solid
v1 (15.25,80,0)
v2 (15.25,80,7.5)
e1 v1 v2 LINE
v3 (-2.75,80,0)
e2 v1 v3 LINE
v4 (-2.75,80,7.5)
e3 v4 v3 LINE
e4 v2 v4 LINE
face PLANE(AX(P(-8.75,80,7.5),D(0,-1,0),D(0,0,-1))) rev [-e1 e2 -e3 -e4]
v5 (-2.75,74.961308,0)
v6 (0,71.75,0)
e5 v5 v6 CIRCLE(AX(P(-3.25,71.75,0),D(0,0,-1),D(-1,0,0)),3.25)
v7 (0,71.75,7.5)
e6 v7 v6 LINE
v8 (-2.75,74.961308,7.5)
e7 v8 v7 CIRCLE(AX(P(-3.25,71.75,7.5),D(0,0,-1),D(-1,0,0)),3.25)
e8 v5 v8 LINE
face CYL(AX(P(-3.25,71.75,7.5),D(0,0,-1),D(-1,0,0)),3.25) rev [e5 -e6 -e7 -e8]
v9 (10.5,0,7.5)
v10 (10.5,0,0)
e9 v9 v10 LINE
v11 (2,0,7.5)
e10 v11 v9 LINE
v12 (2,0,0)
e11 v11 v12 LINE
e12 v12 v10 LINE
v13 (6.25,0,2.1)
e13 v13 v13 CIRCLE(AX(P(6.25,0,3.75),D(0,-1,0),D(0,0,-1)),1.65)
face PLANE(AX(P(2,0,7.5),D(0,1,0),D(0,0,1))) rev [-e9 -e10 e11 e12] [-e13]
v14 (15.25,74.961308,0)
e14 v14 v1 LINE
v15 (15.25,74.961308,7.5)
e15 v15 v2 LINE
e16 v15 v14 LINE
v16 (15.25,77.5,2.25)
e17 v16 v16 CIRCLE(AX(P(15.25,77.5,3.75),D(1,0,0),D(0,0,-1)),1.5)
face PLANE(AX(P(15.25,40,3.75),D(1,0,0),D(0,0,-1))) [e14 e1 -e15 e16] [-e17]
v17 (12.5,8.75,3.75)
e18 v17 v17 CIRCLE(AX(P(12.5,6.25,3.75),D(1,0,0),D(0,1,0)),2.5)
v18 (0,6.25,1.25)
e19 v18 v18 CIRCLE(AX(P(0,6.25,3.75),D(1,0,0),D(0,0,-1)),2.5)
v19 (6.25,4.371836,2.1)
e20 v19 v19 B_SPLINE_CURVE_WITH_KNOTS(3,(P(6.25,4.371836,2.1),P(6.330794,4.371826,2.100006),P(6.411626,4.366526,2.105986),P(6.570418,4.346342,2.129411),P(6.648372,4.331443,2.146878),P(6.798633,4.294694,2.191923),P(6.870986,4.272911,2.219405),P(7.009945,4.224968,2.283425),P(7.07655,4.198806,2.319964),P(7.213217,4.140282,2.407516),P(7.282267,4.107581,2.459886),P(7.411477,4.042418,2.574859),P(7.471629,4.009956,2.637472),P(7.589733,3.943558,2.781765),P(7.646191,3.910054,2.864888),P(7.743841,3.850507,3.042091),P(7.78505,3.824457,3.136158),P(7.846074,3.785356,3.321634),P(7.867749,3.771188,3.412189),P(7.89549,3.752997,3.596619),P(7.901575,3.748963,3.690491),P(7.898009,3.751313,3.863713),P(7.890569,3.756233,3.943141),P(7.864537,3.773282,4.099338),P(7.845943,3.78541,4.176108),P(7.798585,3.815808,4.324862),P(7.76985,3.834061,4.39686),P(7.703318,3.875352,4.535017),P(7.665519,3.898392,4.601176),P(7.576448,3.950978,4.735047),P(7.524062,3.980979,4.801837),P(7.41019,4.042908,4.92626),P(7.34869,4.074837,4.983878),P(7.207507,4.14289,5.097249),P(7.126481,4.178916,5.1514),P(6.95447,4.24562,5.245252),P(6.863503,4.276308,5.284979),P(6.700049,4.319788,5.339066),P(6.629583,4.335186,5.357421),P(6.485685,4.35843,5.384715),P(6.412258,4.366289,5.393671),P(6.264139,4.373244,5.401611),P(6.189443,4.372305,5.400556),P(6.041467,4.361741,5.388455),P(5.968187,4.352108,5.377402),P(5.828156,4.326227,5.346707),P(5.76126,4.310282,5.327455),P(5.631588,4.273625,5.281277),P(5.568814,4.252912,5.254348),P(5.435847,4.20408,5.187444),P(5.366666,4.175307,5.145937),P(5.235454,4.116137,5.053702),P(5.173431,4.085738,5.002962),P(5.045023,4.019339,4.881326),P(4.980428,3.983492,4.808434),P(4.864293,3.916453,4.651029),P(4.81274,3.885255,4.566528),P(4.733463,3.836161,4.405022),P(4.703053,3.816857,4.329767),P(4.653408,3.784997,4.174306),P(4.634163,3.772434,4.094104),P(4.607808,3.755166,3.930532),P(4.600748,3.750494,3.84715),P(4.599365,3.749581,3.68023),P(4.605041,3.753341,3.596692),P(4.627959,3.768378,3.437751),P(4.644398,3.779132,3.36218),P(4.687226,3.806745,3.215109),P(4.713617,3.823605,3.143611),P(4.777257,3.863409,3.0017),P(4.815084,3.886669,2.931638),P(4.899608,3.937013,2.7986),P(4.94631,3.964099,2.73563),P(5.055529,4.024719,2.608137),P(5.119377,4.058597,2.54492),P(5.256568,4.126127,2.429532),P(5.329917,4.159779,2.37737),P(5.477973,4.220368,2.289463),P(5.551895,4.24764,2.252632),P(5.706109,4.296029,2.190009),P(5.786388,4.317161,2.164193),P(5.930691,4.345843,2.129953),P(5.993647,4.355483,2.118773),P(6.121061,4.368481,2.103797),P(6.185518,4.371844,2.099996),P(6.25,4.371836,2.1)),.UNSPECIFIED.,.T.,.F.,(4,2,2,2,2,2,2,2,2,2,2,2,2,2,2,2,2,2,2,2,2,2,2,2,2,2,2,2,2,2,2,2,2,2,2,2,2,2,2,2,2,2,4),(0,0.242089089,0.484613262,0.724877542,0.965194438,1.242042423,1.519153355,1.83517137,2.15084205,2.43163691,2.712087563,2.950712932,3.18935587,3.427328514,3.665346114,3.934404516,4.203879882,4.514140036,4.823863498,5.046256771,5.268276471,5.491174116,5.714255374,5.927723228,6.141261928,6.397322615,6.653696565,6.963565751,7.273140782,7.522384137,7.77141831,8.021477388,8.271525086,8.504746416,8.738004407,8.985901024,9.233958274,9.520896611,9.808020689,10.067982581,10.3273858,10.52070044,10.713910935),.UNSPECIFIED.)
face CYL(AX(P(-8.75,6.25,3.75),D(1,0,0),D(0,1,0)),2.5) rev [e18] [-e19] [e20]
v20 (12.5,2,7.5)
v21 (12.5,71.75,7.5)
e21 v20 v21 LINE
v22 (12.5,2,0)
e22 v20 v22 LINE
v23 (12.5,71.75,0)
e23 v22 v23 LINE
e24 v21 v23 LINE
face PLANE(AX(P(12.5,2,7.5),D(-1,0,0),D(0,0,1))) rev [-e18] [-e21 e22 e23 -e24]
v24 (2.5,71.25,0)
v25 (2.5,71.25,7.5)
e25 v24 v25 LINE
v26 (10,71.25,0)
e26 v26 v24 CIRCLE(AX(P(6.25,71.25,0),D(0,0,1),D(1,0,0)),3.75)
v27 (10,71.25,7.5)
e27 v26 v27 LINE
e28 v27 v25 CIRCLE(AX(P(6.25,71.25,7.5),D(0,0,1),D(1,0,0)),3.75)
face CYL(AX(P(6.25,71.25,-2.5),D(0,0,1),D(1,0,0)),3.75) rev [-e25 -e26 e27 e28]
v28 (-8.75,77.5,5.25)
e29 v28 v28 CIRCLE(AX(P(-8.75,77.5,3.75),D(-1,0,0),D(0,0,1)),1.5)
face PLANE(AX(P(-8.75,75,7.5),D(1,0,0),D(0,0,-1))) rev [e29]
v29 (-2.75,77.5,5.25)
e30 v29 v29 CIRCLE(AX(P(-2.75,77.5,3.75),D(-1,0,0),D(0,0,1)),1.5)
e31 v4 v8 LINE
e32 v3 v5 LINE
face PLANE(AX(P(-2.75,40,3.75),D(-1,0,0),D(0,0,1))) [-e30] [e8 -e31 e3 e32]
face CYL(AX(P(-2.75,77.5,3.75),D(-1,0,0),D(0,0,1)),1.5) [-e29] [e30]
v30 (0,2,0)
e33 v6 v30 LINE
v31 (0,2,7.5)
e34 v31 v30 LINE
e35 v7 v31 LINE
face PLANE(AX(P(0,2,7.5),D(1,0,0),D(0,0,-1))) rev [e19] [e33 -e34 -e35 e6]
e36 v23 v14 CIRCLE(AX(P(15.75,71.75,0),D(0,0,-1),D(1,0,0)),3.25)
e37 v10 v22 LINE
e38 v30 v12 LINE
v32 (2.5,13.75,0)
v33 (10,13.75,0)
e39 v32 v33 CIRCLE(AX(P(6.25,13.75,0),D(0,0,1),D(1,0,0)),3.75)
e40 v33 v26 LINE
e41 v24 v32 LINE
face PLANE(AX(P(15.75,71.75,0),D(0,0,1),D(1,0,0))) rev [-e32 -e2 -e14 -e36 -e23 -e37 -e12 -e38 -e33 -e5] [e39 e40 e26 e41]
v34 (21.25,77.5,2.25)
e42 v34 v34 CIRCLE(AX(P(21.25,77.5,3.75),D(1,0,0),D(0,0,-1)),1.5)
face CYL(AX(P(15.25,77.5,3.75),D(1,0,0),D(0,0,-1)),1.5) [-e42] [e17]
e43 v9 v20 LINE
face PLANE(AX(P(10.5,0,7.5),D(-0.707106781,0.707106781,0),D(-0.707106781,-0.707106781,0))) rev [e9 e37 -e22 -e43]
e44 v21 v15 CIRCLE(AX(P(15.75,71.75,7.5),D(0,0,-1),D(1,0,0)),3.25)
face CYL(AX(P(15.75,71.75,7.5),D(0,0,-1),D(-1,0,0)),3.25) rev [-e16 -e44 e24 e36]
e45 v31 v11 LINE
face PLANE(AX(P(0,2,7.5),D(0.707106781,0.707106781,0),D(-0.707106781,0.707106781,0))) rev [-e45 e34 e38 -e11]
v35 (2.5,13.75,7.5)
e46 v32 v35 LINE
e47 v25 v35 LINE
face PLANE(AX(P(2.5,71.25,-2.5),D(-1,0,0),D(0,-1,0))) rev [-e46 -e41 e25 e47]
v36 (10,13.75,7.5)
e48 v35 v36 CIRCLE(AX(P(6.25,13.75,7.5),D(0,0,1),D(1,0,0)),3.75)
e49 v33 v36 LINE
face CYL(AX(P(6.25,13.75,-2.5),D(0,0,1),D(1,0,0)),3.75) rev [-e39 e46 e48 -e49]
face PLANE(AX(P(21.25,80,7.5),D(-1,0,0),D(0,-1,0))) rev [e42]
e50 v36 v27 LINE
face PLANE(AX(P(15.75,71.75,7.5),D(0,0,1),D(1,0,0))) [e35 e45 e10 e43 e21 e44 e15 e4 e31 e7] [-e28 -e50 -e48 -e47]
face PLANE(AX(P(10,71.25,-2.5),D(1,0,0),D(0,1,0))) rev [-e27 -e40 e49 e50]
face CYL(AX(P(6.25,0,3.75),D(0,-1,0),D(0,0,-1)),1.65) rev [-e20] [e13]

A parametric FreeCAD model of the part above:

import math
import FreeCAD as App
import Part
import Sketcher
Q = App.Units.Quantity

doc = App.newDocument("Part")
params = doc.addObject("Spreadsheet::Sheet", "Params")
for row, (alias, value) in enumerate([
    ("sketch1_width", "30 mm"),
    ("sketch1_height", "5 mm"),
    ("sketch1_radius", "3.25 mm"),
    ("sketch1_width2", "5.5 mm"),
    ("sketch1_width3", "8.5 mm"),
    ("pad1_length", "7.5 mm"),
    ("sketch2_radius", "3.75 mm"),
    ("sketch2_height", "57.5 mm"),
    ("pocket1_length", "10 mm"),
    ("sketch3_diameter", "5 mm"),
    ("sketch4_diameter", "3.3 mm"),
    ("hole_diameter", "3.3 mm"),
    ("hole_depth", "7.5 mm"),
    ("sketch5_diameter", "3 mm"),
    ("pocket3_length", "6 mm"),
    ("sketch6_diameter", "3 mm"),
    ("pocket4_length", "6 mm"),
], start=1):
    params.set(f"A{row}", alias)
    params.set(f"B{row}", "=" + value)
    params.setAlias(f"B{row}", alias)

body = doc.addObject("PartDesign::Body", "Body")

sketch1 = body.newObject("Sketcher::SketchObject", "Sketch")
sketch1.AttachmentSupport = (doc.getObject("XY_Plane"), [""])
sketch1.MapMode = "FlatFace"
sketch1.addGeometry(Part.LineSegment(App.Vector(-8.8, 75, 0), App.Vector(-3.2, 75, 0)), False)
sketch1.addGeometry(Part.ArcOfCircle(Part.Circle(App.Vector(-3.2, 71.8, 0), App.Vector(0, 0, 1), 3.2), math.radians(0), math.radians(90)), False)
sketch1.addGeometry(Part.LineSegment(App.Vector(0, 71.8, 0), App.Vector(0, 2, 0)), False)
sketch1.addGeometry(Part.LineSegment(App.Vector(0, 2, 0), App.Vector(2, 0, 0)), False)
sketch1.addGeometry(Part.LineSegment(App.Vector(2, 0, 0), App.Vector(10.5, 0, 0)), False)
sketch1.addGeometry(Part.LineSegment(App.Vector(10.5, 0, 0), App.Vector(12.5, 2, 0)), False)
sketch1.addGeometry(Part.LineSegment(App.Vector(12.5, 2, 0), App.Vector(12.5, 71.8, 0)), False)
sketch1.addGeometry(Part.ArcOfCircle(Part.Circle(App.Vector(15.8, 71.8, 0), App.Vector(0, 0, 1), 3.2), math.radians(90), math.radians(180)), False)
sketch1.addGeometry(Part.LineSegment(App.Vector(15.8, 75, 0), App.Vector(21.2, 75, 0)), False)
sketch1.addGeometry(Part.LineSegment(App.Vector(21.2, 75, 0), App.Vector(21.2, 80, 0)), False)
sketch1.addGeometry(Part.LineSegment(App.Vector(21.2, 80, 0), App.Vector(-8.8, 80, 0)), False)
sketch1.addGeometry(Part.LineSegment(App.Vector(-8.8, 80, 0), App.Vector(-8.8, 75, 0)), False)
sketch1.addConstraint(Sketcher.Constraint("Tangent", 0, 2, 1, 2))
sketch1.addConstraint(Sketcher.Constraint("Tangent", 1, 1, 2, 1))
sketch1.addConstraint(Sketcher.Constraint("Coincident", 2, 2, 3, 1))
sketch1.addConstraint(Sketcher.Constraint("Coincident", 3, 2, 4, 1))
sketch1.addConstraint(Sketcher.Constraint("Coincident", 4, 2, 5, 1))
sketch1.addConstraint(Sketcher.Constraint("Coincident", 5, 2, 6, 1))
sketch1.addConstraint(Sketcher.Constraint("Tangent", 6, 2, 7, 2))
sketch1.addConstraint(Sketcher.Constraint("Tangent", 7, 1, 8, 1))
sketch1.addConstraint(Sketcher.Constraint("Coincident", 8, 2, 9, 1))
sketch1.addConstraint(Sketcher.Constraint("Coincident", 9, 2, 10, 1))
sketch1.addConstraint(Sketcher.Constraint("Coincident", 10, 2, 11, 1))
sketch1.addConstraint(Sketcher.Constraint("Coincident", 11, 2, 0, 1))
sketch1.addConstraint(Sketcher.Constraint("Horizontal", 0))
sketch1.addConstraint(Sketcher.Constraint("Vertical", 2))
sketch1.addConstraint(Sketcher.Constraint("Horizontal", 4))
sketch1.addConstraint(Sketcher.Constraint("Vertical", 6))
sketch1.addConstraint(Sketcher.Constraint("Horizontal", 8))
sketch1.addConstraint(Sketcher.Constraint("Vertical", 9))
sketch1.addConstraint(Sketcher.Constraint("Horizontal", 10))
sketch1.addConstraint(Sketcher.Constraint("Vertical", 11))
sketch1.addConstraint(Sketcher.Constraint("Equal", 1, 7))
sketch1.addConstraint(Sketcher.Constraint("PointOnObject", 1, 1, -2))
sketch1.addConstraint(Sketcher.Constraint("PointOnObject", 3, 2, -1))
sketch1.addConstraint(Sketcher.Constraint("Perpendicular", 3, 5))
sketch1.addConstraint(Sketcher.Constraint("Horizontal", 1, 3, 7, 3))
sketch1.addConstraint(Sketcher.Constraint("Horizontal", 2, 2, 5, 2))
sketch1.addConstraint(Sketcher.Constraint("Equal", 0, 8))
sketch1.addConstraint(Sketcher.Constraint("Equal", 3, 5))
sketch1.addConstraint(Sketcher.Constraint("DistanceX", 10, 2, 10, 1, Q("30 mm")))
sketch1.addConstraint(Sketcher.Constraint("DistanceY", 9, 1, 9, 2, Q("5 mm")))
sketch1.addConstraint(Sketcher.Constraint("Radius", 1, Q("3.25 mm")))
sketch1.addConstraint(Sketcher.Constraint("DistanceX", 0, 1, 0, 2, Q("5.5 mm")))
sketch1.addConstraint(Sketcher.Constraint("DistanceX", 4, 1, 4, 2, Q("8.5 mm")))
sketch1.addConstraint(Sketcher.Constraint("DistanceY", -1, 1, 0, 2, Q("75 mm")))
sketch1.setExpression("Constraints[28]", "Params.sketch1_width")
sketch1.setExpression("Constraints[29]", "Params.sketch1_height")
sketch1.setExpression("Constraints[30]", "Params.sketch1_radius")
sketch1.setExpression("Constraints[31]", "Params.sketch1_width2")
sketch1.setExpression("Constraints[32]", "Params.sketch1_width3")
pad1 = body.newObject("PartDesign::Pad", "Pad")
pad1.Profile = sketch1
pad1.setExpression("Length", "Params.pad1_length")

sketch2 = body.newObject("Sketcher::SketchObject", "Sketch001")
sketch2.AttachmentSupport = (doc.getObject("XY_Plane"), [""])
sketch2.MapMode = "FlatFace"
sketch2.AttachmentOffset = App.Placement(App.Vector(0, 0, 7.5), App.Rotation())
sketch2.addGeometry(Part.LineSegment(App.Vector(10, 13.8, 0), App.Vector(10, 71.2, 0)), False)
sketch2.addGeometry(Part.ArcOfCircle(Part.Circle(App.Vector(6.2, 71.2, 0), App.Vector(0, 0, 1), 3.8), math.radians(0), math.radians(180)), False)
sketch2.addGeometry(Part.LineSegment(App.Vector(2.5, 71.2, 0), App.Vector(2.5, 13.8, 0)), False)
sketch2.addGeometry(Part.ArcOfCircle(Part.Circle(App.Vector(6.2, 13.8, 0), App.Vector(0, 0, 1), 3.8), math.radians(180), math.radians(360)), False)
sketch2.addConstraint(Sketcher.Constraint("Tangent", 0, 2, 1, 1))
sketch2.addConstraint(Sketcher.Constraint("Tangent", 1, 2, 2, 1))
sketch2.addConstraint(Sketcher.Constraint("Tangent", 2, 2, 3, 1))
sketch2.addConstraint(Sketcher.Constraint("Tangent", 3, 2, 0, 1))
sketch2.addConstraint(Sketcher.Constraint("Vertical", 0))
sketch2.addConstraint(Sketcher.Constraint("Vertical", 2))
sketch2.addConstraint(Sketcher.Constraint("Radius", 1, Q("3.75 mm")))
sketch2.addConstraint(Sketcher.Constraint("DistanceY", 0, 1, 0, 2, Q("57.5 mm")))
sketch2.addConstraint(Sketcher.Constraint("DistanceX", -1, 1, 0, 2, Q("10 mm")))
sketch2.addConstraint(Sketcher.Constraint("DistanceY", -1, 1, 1, 3, Q("71.25 mm")))
sketch2.setExpression("Constraints[6]", "Params.sketch2_radius")
sketch2.setExpression("Constraints[7]", "Params.sketch2_height")
pocket1 = body.newObject("PartDesign::Pocket", "Pocket")
pocket1.Profile = sketch2
pocket1.setExpression("Length", "Params.pocket1_length")

sketch3 = body.newObject("Sketcher::SketchObject", "Sketch002")
sketch3.AttachmentSupport = (doc.getObject("YZ_Plane"), [""])
sketch3.MapMode = "FlatFace"
sketch3.AttachmentOffset = App.Placement(App.Vector(0, 0, 12.5), App.Rotation())
sketch3.addGeometry(Part.Circle(App.Vector(6.2, 3.8, 0), App.Vector(0, 0, 1), 2.5), False)
sketch3.addConstraint(Sketcher.Constraint("Diameter", 0, Q("5 mm")))
sketch3.addConstraint(Sketcher.Constraint("DistanceX", -1, 1, 0, 3, Q("6.25 mm")))
sketch3.addConstraint(Sketcher.Constraint("DistanceY", -1, 1, 0, 3, Q("3.75 mm")))
sketch3.setExpression("Constraints[0]", "Params.sketch3_diameter")
pocket2 = body.newObject("PartDesign::Pocket", "Pocket001")
pocket2.Profile = sketch3
pocket2.Type = "ThroughAll"

sketch4 = body.newObject("Sketcher::SketchObject", "Sketch003")
sketch4.AttachmentSupport = (doc.getObject("XZ_Plane"), [""])
sketch4.MapMode = "FlatFace"
sketch4.addGeometry(Part.Circle(App.Vector(6.2, 3.8, 0), App.Vector(0, 0, 1), 1.6), False)
sketch4.addConstraint(Sketcher.Constraint("Diameter", 0, Q("3.3 mm")))
sketch4.addConstraint(Sketcher.Constraint("DistanceX", -1, 1, 0, 3, Q("6.25 mm")))
sketch4.addConstraint(Sketcher.Constraint("DistanceY", -1, 1, 0, 3, Q("3.75 mm")))
sketch4.setExpression("Constraints[0]", "Params.sketch4_diameter")
doc.recompute()
hole = body.newObject("PartDesign::Hole", "Hole")
hole.Profile = sketch4
hole.ThreadType = "None"
hole.setExpression("Diameter", "Params.hole_diameter")
hole.DepthType = "Dimension"
hole.setExpression("Depth", "Params.hole_depth")
hole.DrillPoint = "Angled"
hole.DrillPointAngle = 118

sketch5 = body.newObject("Sketcher::SketchObject", "Sketch004")
sketch5.AttachmentSupport = (doc.getObject("YZ_Plane"), [""])
sketch5.MapMode = "FlatFace"
sketch5.AttachmentOffset = App.Placement(App.Vector(0, 0, 21.25), App.Rotation())
sketch5.addGeometry(Part.LineSegment(App.Vector(89.6, 17.1, 0), App.Vector(-9.6, 17.1, 0)), False)
sketch5.addGeometry(Part.LineSegment(App.Vector(-9.6, 17.1, 0), App.Vector(-9.6, -9.6, 0)), False)
sketch5.addGeometry(Part.LineSegment(App.Vector(-9.6, -9.6, 0), App.Vector(89.6, -9.6, 0)), False)
sketch5.addGeometry(Part.LineSegment(App.Vector(89.6, -9.6, 0), App.Vector(89.6, 17.1, 0)), False)
sketch5.addGeometry(Part.Circle(App.Vector(77.5, 3.8, 0), App.Vector(0, 0, 1), 1.5), False)
sketch5.addConstraint(Sketcher.Constraint("Coincident", 0, 2, 1, 1))
sketch5.addConstraint(Sketcher.Constraint("Coincident", 1, 2, 2, 1))
sketch5.addConstraint(Sketcher.Constraint("Coincident", 2, 2, 3, 1))
sketch5.addConstraint(Sketcher.Constraint("Coincident", 3, 2, 0, 1))
sketch5.addConstraint(Sketcher.Constraint("Horizontal", 0))
sketch5.addConstraint(Sketcher.Constraint("Vertical", 1))
sketch5.addConstraint(Sketcher.Constraint("Horizontal", 2))
sketch5.addConstraint(Sketcher.Constraint("Vertical", 3))
sketch5.addConstraint(Sketcher.Constraint("Diameter", 4, Q("3 mm")))
sketch5.addConstraint(Sketcher.Constraint("DistanceX", -1, 1, 4, 3, Q("77.5 mm")))
sketch5.addConstraint(Sketcher.Constraint("DistanceX", 0, 2, 0, 1, Q("99.154 mm")))
sketch5.addConstraint(Sketcher.Constraint("DistanceY", 1, 2, 1, 1, Q("26.654 mm")))
sketch5.addConstraint(Sketcher.Constraint("DistanceY", -1, 1, 4, 3, Q("3.75 mm")))
sketch5.addConstraint(Sketcher.Constraint("DistanceX", 0, 2, -1, 1, Q("9.577 mm")))
sketch5.addConstraint(Sketcher.Constraint("DistanceY", -1, 1, 0, 2, Q("17.077 mm")))
sketch5.setExpression("Constraints[8]", "Params.sketch5_diameter")
pocket3 = body.newObject("PartDesign::Pocket", "Pocket002")
pocket3.Profile = sketch5
pocket3.setExpression("Length", "Params.pocket3_length")

sketch6 = body.newObject("Sketcher::SketchObject", "Sketch005")
sketch6.AttachmentSupport = (doc.getObject("YZ_Plane"), [""])
sketch6.MapMode = "FlatFace"
sketch6.AttachmentOffset = App.Placement(App.Vector(0, 0, -8.75), App.Rotation())
sketch6.addGeometry(Part.LineSegment(App.Vector(89.6, -9.6, 0), App.Vector(-9.6, -9.6, 0)), False)
sketch6.addGeometry(Part.LineSegment(App.Vector(-9.6, -9.6, 0), App.Vector(-9.6, 17.1, 0)), False)
sketch6.addGeometry(Part.LineSegment(App.Vector(-9.6, 17.1, 0), App.Vector(89.6, 17.1, 0)), False)
sketch6.addGeometry(Part.LineSegment(App.Vector(89.6, 17.1, 0), App.Vector(89.6, -9.6, 0)), False)
sketch6.addGeometry(Part.Circle(App.Vector(77.5, 3.8, 0), App.Vector(0, 0, 1), 1.5), False)
sketch6.addConstraint(Sketcher.Constraint("Coincident", 0, 2, 1, 1))
sketch6.addConstraint(Sketcher.Constraint("Coincident", 1, 2, 2, 1))
sketch6.addConstraint(Sketcher.Constraint("Coincident", 2, 2, 3, 1))
sketch6.addConstraint(Sketcher.Constraint("Coincident", 3, 2, 0, 1))
sketch6.addConstraint(Sketcher.Constraint("Horizontal", 0))
sketch6.addConstraint(Sketcher.Constraint("Vertical", 1))
sketch6.addConstraint(Sketcher.Constraint("Horizontal", 2))
sketch6.addConstraint(Sketcher.Constraint("Vertical", 3))
sketch6.addConstraint(Sketcher.Constraint("Diameter", 4, Q("3 mm")))
sketch6.addConstraint(Sketcher.Constraint("DistanceX", -1, 1, 4, 3, Q("77.5 mm")))
sketch6.addConstraint(Sketcher.Constraint("DistanceX", 0, 2, 0, 1, Q("99.154 mm")))
sketch6.addConstraint(Sketcher.Constraint("DistanceY", 1, 1, 1, 2, Q("26.654 mm")))
sketch6.addConstraint(Sketcher.Constraint("DistanceY", -1, 1, 4, 3, Q("3.75 mm")))
sketch6.addConstraint(Sketcher.Constraint("DistanceX", 0, 2, -1, 1, Q("9.577 mm")))
sketch6.addConstraint(Sketcher.Constraint("DistanceY", 0, 2, -1, 1, Q("9.577 mm")))
sketch6.setExpression("Constraints[8]", "Params.sketch6_diameter")
pocket4 = body.newObject("PartDesign::Pocket", "Pocket003")
pocket4.Profile = sketch6
pocket4.setExpression("Length", "Params.pocket4_length")
pocket4.Reversed = True

doc.recompute()
